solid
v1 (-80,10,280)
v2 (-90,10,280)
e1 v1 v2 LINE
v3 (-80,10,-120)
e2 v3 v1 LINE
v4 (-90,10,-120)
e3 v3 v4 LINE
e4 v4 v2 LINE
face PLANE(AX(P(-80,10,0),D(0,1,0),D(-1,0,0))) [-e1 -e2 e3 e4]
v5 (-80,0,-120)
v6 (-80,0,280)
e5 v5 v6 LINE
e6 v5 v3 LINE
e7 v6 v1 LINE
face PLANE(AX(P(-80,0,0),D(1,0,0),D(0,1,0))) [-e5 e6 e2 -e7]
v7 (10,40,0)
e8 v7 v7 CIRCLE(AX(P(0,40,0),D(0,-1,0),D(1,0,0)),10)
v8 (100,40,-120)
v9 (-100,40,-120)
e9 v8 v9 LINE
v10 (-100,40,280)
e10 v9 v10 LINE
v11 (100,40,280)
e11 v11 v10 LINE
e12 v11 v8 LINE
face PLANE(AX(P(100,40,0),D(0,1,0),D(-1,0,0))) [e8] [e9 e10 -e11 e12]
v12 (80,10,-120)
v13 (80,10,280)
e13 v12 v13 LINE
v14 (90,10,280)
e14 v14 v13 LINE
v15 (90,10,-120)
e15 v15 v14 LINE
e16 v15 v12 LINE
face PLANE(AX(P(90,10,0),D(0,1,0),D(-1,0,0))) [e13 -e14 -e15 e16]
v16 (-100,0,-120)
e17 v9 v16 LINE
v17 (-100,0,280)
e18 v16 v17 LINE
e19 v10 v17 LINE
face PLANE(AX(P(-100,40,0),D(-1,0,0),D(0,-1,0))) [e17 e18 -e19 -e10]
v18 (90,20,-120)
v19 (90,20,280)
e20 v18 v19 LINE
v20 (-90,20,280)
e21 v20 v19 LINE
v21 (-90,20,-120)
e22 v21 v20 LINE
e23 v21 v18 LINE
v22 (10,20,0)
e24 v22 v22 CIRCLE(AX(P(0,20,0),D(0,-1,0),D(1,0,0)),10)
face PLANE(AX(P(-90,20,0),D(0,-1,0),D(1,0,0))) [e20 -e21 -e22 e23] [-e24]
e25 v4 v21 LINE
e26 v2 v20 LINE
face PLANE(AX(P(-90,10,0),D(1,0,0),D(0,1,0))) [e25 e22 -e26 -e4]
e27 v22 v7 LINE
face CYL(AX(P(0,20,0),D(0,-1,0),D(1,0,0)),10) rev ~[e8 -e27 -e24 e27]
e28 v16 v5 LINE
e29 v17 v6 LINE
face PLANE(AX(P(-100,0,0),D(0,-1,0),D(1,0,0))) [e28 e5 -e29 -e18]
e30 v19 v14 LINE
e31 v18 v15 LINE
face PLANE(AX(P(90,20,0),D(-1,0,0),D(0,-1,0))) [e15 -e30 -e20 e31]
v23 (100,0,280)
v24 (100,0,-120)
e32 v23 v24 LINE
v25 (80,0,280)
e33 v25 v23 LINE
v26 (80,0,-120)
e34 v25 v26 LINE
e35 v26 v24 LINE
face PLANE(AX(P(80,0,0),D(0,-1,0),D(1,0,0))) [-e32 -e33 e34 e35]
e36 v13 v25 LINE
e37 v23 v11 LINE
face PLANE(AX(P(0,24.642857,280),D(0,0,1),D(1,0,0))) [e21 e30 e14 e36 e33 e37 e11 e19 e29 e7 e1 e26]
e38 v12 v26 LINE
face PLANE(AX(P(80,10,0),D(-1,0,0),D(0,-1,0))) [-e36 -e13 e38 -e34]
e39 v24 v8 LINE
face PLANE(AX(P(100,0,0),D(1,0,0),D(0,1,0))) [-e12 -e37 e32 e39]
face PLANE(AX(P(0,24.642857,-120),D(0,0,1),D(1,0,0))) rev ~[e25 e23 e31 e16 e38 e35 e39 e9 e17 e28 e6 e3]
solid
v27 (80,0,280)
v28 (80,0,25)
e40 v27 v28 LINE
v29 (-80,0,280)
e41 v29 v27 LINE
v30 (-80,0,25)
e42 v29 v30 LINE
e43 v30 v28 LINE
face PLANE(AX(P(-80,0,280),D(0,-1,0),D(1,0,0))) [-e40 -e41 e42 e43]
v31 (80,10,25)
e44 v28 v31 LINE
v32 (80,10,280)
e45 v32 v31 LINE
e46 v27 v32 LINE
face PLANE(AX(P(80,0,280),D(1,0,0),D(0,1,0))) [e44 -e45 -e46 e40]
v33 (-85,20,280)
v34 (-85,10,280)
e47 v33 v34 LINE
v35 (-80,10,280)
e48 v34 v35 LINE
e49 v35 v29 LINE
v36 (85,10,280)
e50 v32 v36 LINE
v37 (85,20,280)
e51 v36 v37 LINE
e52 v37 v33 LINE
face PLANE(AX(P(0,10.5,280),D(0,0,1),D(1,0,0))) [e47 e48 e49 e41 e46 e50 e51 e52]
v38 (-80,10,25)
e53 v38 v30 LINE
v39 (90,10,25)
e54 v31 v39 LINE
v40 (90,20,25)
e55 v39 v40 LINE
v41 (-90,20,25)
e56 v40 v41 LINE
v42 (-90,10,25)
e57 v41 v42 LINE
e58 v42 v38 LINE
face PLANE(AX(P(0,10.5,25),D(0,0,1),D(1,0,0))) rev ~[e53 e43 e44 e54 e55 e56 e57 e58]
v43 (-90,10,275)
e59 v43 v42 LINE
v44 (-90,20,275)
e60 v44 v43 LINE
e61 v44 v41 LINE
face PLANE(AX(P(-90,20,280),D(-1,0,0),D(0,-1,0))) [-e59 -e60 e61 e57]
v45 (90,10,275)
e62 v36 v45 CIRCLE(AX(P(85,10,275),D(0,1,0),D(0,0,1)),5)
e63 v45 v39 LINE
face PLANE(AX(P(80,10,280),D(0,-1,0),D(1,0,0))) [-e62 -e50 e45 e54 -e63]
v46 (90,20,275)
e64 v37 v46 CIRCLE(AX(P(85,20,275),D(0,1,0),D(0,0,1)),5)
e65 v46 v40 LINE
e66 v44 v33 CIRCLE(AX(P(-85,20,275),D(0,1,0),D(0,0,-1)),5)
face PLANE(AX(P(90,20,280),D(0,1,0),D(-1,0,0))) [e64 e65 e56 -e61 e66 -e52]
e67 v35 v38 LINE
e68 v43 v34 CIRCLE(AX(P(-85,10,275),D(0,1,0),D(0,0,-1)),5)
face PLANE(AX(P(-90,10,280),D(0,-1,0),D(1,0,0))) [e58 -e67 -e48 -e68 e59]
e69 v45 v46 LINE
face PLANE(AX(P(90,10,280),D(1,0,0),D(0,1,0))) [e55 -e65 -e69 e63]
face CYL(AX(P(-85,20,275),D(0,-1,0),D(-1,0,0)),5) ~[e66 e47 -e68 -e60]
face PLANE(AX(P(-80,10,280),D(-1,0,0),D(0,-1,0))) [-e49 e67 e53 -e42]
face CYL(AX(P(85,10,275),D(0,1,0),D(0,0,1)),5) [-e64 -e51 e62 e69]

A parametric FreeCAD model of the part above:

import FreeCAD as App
import Part
import Sketcher
from FreeCAD import Vector


def edges_at(feature, points):
    """Names of the edges that pass closest to the given points."""
    edges = feature.Shape.Edges
    near = lambda p: min(range(len(edges)), key=lambda i: edges[i].distToShape(Part.Vertex(*p))[0])
    return sorted({f"Edge{near(p) + 1}" for p in points})


def add_polygon(sketch, points):
    """Adds a closed chain of lines whose ends are joined by coincident constraints."""
    first, n = sketch.GeometryCount, len(points)
    for a, b in zip(points, points[1:] + points[:1]):
        sketch.addGeometry(Part.LineSegment(App.Vector(*a, 0), App.Vector(*b, 0)), False)
    for i in range(n):
        sketch.addConstraint(Sketcher.Constraint("Coincident", first + i, 2, first + (i + 1) % n, 1))

doc = App.newDocument("Part")
body = doc.addObject("PartDesign::Body", "Body")

# Sketch on XY plane
sketch1 = body.newObject("Sketcher::SketchObject", "Sketch")
sketch1.AttachmentSupport = (doc.getObject("XY_Plane"), [""])
sketch1.MapMode = "FlatFace"
add_polygon(sketch1, [(100, 40), (-100, 40), (-100, 0), (-80, 0), (-80, 10), (-90, 10), (-90, 20), (90, 20), (90, 10), (80, 10), (80, 0), (100, 0)])  # lines 0-11
sketch1.addConstraint([
    Sketcher.Constraint("Horizontal", 0),
    Sketcher.Constraint("Vertical", 1),
    Sketcher.Constraint("Horizontal", 2),
    Sketcher.Constraint("Vertical", 3),
    Sketcher.Constraint("Horizontal", 4),
    Sketcher.Constraint("Vertical", 5),
    Sketcher.Constraint("Horizontal", 6),
    Sketcher.Constraint("Vertical", 7),
    Sketcher.Constraint("Horizontal", 8),
    Sketcher.Constraint("Vertical", 9),
    Sketcher.Constraint("Horizontal", 10),
    Sketcher.Constraint("Vertical", 11),
    Sketcher.Constraint("Symmetric", 2, 2, 9, 2, -1, 1),
    Sketcher.Constraint("Symmetric", 4, 2, 7, 2, -2),
    Sketcher.Constraint("Symmetric", 1, 2, 10, 2, -2),
    Sketcher.Constraint("Equal", 8, 3),
    Sketcher.Constraint("Equal", 3, 5),
    Sketcher.Constraint("DistanceX", 0, 2, 0, 1, 200.0),
    Sketcher.Constraint("DistanceX", 2, 1, 2, 2, 20.0),
    Sketcher.Constraint("DistanceX", 4, 2, 4, 1, 10.0),
    Sketcher.Constraint("DistanceY", 1, 2, 1, 1, 40.0),
])
pad1 = body.newObject("PartDesign::Pad", "Pad")
pad1.Profile = sketch1
pad1.Type = "TwoLengths"
pad1.Length = 280
pad1.Length2 = 120

# Sketch on XZ plane
sketch2 = body.newObject("Sketcher::SketchObject", "Sketch001")
sketch2.AttachmentSupport = (doc.getObject("XZ_Plane"), [""])
sketch2.MapMode = "FlatFace"
sketch2.AttachmentOffset = App.Placement(Vector(0, 0, -20), App.Rotation())
sketch2.addGeometry(Part.Circle(Vector(0, 0, 0), Vector(0, 0, 1), 10), False)
sketch2.addConstraint([
    Sketcher.Constraint("Coincident", 0, 3, -1, 1),
    Sketcher.Constraint("Diameter", 0, 20.0),
])
pocket1 = body.newObject("PartDesign::Pocket", "Pocket")
pocket1.Profile = sketch2
pocket1.Length = 20
body2 = doc.addObject("PartDesign::Body", "Body001")

# Sketch on XY plane
sketch3 = body2.newObject("Sketcher::SketchObject", "Sketch002")
sketch3.AttachmentSupport = (doc.getObject("XY_Plane001"), [""])
sketch3.MapMode = "FlatFace"
sketch3.AttachmentOffset = App.Placement(Vector(0, 0, 280), App.Rotation())
add_polygon(sketch3, [(90, 20), (-90, 20), (-90, 10), (-80, 10), (-80, 0), (80, 0), (80, 10), (90, 10)])  # lines 0-7
sketch3.addConstraint([
    Sketcher.Constraint("Horizontal", 0),
    Sketcher.Constraint("Vertical", 1),
    Sketcher.Constraint("Horizontal", 2),
    Sketcher.Constraint("Vertical", 3),
    Sketcher.Constraint("Horizontal", 4),
    Sketcher.Constraint("Vertical", 5),
    Sketcher.Constraint("Horizontal", 6),
    Sketcher.Constraint("Vertical", 7),
    Sketcher.Constraint("Symmetric", 3, 2, 4, 2, -1, 1),
    Sketcher.Constraint("Symmetric", 1, 2, 6, 2, -2),
    Sketcher.Constraint("Equal", 6, 1),
    Sketcher.Constraint("Equal", 1, 3),
    Sketcher.Constraint("DistanceX", 0, 2, 0, 1, 180.0),
    Sketcher.Constraint("DistanceX", 2, 1, 2, 2, 10.0),
])
pad2 = body2.newObject("PartDesign::Pad", "Pad001")
pad2.Profile = sketch3
pad2.Length = 255
pad2.Reversed = True
doc.recompute()

fillet = body2.newObject("PartDesign::Fillet", "Fillet")
fillet.Base = (pad2, edges_at(pad2, [(-90, 15, 280)]))
fillet.Radius = 5
doc.recompute()

fillet2 = body2.newObject("PartDesign::Fillet", "Fillet001")
fillet2.Base = (fillet, edges_at(fillet, [(90, 15, 280)]))
fillet2.Radius = 5

doc.recompute()
